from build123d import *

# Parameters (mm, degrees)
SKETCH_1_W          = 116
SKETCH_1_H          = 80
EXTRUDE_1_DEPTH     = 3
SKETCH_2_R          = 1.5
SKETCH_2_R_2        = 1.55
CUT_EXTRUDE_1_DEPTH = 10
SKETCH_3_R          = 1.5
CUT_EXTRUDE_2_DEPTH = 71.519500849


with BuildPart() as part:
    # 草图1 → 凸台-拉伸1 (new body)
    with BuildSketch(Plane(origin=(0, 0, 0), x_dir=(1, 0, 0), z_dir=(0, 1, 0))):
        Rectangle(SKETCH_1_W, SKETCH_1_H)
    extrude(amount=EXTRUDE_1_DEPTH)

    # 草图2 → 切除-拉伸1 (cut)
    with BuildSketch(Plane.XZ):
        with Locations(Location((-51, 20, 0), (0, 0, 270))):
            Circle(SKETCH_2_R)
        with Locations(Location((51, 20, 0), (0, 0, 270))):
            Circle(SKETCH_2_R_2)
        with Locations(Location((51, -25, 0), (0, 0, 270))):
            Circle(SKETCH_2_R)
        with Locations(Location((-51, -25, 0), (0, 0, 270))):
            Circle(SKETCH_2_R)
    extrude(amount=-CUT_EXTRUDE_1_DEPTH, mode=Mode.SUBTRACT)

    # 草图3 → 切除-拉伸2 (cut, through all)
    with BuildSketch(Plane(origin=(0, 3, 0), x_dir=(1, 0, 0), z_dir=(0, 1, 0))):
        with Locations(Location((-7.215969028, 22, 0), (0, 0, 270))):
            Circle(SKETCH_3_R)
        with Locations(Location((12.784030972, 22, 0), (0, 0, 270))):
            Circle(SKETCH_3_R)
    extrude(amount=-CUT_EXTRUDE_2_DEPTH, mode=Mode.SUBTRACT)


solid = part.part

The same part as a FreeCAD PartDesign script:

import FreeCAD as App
import Part
import Sketcher
from FreeCAD import Vector
Q = App.Units.Quantity

doc = App.newDocument("Part")
body = doc.addObject("PartDesign::Body", "Body")

# Sketch on XZ plane
sketch1 = doc.addObject("Sketcher::SketchObject", "Sketch")
body.addObject(sketch1)
sketch1.AttachmentSupport = (doc.XZ_Plane, [""])
sketch1.MapMode = "FlatFace"
sketch1.addGeometry([
    Part.LineSegment(Vector(-58, -40, 0), Vector(-58, 40, 0)),
    Part.LineSegment(Vector(-58, 40, 0), Vector(58, 40, 0)),
    Part.LineSegment(Vector(58, 40, 0), Vector(58, -40, 0)),
    Part.LineSegment(Vector(58, -40, 0), Vector(-58, -40, 0)),
], False)
sketch1.addConstraint([
    Sketcher.Constraint("Coincident", 0, 2, 1, 1),
    Sketcher.Constraint("Coincident", 1, 2, 2, 1),
    Sketcher.Constraint("Coincident", 2, 2, 3, 1),
    Sketcher.Constraint("Coincident", 3, 2, 0, 1),
    Sketcher.Constraint("Vertical", 0),
    Sketcher.Constraint("Horizontal", 1),
    Sketcher.Constraint("Vertical", 2),
    Sketcher.Constraint("Horizontal", 3),
    Sketcher.Constraint("Symmetric", 0, 2, 2, 2, -1, 1),
    Sketcher.Constraint("DistanceX", 1, 1, 1, 2, Q("116 mm")),
    Sketcher.Constraint("DistanceY", 0, 1, 0, 2, Q("80 mm")),
])
pad1 = doc.addObject("PartDesign::Pad", "Pad")
body.addObject(pad1)
pad1.Profile = sketch1
pad1.Length = 3
pad1.Reversed = True

# Sketch on XZ plane
sketch2 = doc.addObject("Sketcher::SketchObject", "Sketch001")
body.addObject(sketch2)
sketch2.AttachmentSupport = (doc.XZ_Plane, [""])
sketch2.MapMode = "FlatFace"
sketch2.addGeometry([
    Part.Circle(Vector(-51, 20, 0), Vector(0, 0, 1), 1.5),
    Part.Circle(Vector(51, 20, 0), Vector(0, 0, 1), 1.6),
    Part.Circle(Vector(51, -25, 0), Vector(0, 0, 1), 1.5),
    Part.Circle(Vector(-51, -25, 0), Vector(0, 0, 1), 1.5),
], False)
sketch2.addConstraint([
    Sketcher.Constraint("Equal", 0, 2),
    Sketcher.Constraint("Equal", 2, 3),
    Sketcher.Constraint("Symmetric", 0, 3, 1, 3, -2),
    Sketcher.Constraint("Symmetric", 2, 3, 3, 3, -2),
    Sketcher.Constraint("Vertical", 1, 3, 2, 3),
    Sketcher.Constraint("Diameter", 0, Q("3 mm")),
    Sketcher.Constraint("Diameter", 1, Q("3.1 mm")),
    Sketcher.Constraint("DistanceX", 0, 3, -1, 1, Q("51 mm")),
    Sketcher.Constraint("DistanceY", -1, 1, 0, 3, Q("20 mm")),
    Sketcher.Constraint("DistanceY", 2, 3, -1, 1, Q("25 mm")),
])
pocket1 = doc.addObject("PartDesign::Pocket", "Pocket")
body.addObject(pocket1)
pocket1.Profile = sketch2
pocket1.Length = 10

# Sketch on XZ plane
sketch3 = doc.addObject("Sketcher::SketchObject", "Sketch002")
body.addObject(sketch3)
sketch3.AttachmentSupport = (doc.XZ_Plane, [""])
sketch3.MapMode = "FlatFace"
sketch3.AttachmentOffset = App.Placement(Vector(0, 0, -3), App.Rotation())
sketch3.addGeometry([
    Part.Circle(Vector(-7.2, -22, 0), Vector(0, 0, 1), 1.5),
    Part.Circle(Vector(12.8, -22, 0), Vector(0, 0, 1), 1.5),
], False)
sketch3.addConstraint([
    Sketcher.Constraint("Equal", 0, 1),
    Sketcher.Constraint("Horizontal", 0, 3, 1, 3),
    Sketcher.Constraint("Diameter", 0, Q("3 mm")),
    Sketcher.Constraint("DistanceY", 0, 3, -1, 1, Q("22 mm")),
    Sketcher.Constraint("DistanceX", 0, 3, 1, 3, Q("20 mm")),
    Sketcher.Constraint("DistanceX", 0, 3, -1, 1, Q("7.215969 mm")),
])
pocket2 = doc.addObject("PartDesign::Pocket", "Pocket001")
body.addObject(pocket2)
pocket2.Profile = sketch3
pocket2.Type = "ThroughAll"
pocket2.Reversed = True

doc.recompute()
